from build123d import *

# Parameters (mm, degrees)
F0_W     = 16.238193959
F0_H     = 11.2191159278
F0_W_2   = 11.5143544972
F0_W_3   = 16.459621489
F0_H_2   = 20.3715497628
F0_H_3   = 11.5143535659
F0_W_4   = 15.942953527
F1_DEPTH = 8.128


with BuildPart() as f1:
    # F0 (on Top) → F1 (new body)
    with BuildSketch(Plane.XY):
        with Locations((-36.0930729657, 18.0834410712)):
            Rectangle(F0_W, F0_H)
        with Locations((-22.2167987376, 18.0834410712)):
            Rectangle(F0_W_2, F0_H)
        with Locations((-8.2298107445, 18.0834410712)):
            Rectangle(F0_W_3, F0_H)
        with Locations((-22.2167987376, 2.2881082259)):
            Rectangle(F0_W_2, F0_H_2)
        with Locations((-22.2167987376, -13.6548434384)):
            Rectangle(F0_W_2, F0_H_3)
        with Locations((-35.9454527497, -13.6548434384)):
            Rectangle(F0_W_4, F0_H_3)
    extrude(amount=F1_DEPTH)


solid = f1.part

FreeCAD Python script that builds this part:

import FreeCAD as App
import Part
import Sketcher

V = App.Vector
Q = App.Units.Quantity


def add_polygon(sketch, points):
    """Adds a closed chain of lines whose ends are joined by coincident constraints."""
    first, n = sketch.GeometryCount, len(points)
    for a, b in zip(points, points[1:] + points[:1]):
        sketch.addGeometry(Part.LineSegment(App.Vector(*a, 0), App.Vector(*b, 0)), False)
    for i in range(n):
        sketch.addConstraint(Sketcher.Constraint("Coincident", first + i, 2, first + (i + 1) % n, 1))

doc = App.newDocument("Part")
body = doc.addObject("PartDesign::Body", "Body")

# Sketch on XY plane
sketch1 = body.newObject("Sketcher::SketchObject", "Sketch")
sketch1.AttachmentSupport = (doc.getObject("XY_Plane"), [""])
sketch1.MapMode = "FlatFace"
add_polygon(sketch1, [(-44, 24), (-44, 12), (-28, 12), (-28, -8), (-44, -8), (-44, -19), (-16, -19), (-16, 12), (0, 12), (0, 24)])  # lines 0-9
sketch1.addConstraint([
    Sketcher.Constraint("Vertical", 0),
    Sketcher.Constraint("Horizontal", 1),
    Sketcher.Constraint("Vertical", 2),
    Sketcher.Constraint("Horizontal", 3),
    Sketcher.Constraint("Vertical", 4),
    Sketcher.Constraint("Horizontal", 5),
    Sketcher.Constraint("Vertical", 6),
    Sketcher.Constraint("Horizontal", 7),
    Sketcher.Constraint("Vertical", 8),
    Sketcher.Constraint("Horizontal", 9),
    Sketcher.Constraint("PointOnObject", 7, 2, -2),
    Sketcher.Constraint("Horizontal", 1, 2, 6, 2),
    Sketcher.Constraint("DistanceX", 5, 1, 5, 2, 27.457308),
    Sketcher.Constraint("DistanceX", 7, 1, 7, 2, 16.459621),
    Sketcher.Constraint("DistanceX", 9, 2, 9, 1, 44.21217),
    Sketcher.Constraint("DistanceY", 2, 2, 2, 1, 20.37155),
    Sketcher.Constraint("DistanceY", -1, 1, 8, 2, 23.692999),
    Sketcher.Constraint("DistanceX", 1, 1, 1, 2, 16.238194),
    Sketcher.Constraint("DistanceY", 0, 2, 0, 1, 11.219116),
    Sketcher.Constraint("DistanceY", 4, 2, 4, 1, 11.514354),
])
pad1 = body.newObject("PartDesign::Pad", "Pad")
pad1.Profile = sketch1
pad1.Length = Q("0.32 in")

doc.recompute()
